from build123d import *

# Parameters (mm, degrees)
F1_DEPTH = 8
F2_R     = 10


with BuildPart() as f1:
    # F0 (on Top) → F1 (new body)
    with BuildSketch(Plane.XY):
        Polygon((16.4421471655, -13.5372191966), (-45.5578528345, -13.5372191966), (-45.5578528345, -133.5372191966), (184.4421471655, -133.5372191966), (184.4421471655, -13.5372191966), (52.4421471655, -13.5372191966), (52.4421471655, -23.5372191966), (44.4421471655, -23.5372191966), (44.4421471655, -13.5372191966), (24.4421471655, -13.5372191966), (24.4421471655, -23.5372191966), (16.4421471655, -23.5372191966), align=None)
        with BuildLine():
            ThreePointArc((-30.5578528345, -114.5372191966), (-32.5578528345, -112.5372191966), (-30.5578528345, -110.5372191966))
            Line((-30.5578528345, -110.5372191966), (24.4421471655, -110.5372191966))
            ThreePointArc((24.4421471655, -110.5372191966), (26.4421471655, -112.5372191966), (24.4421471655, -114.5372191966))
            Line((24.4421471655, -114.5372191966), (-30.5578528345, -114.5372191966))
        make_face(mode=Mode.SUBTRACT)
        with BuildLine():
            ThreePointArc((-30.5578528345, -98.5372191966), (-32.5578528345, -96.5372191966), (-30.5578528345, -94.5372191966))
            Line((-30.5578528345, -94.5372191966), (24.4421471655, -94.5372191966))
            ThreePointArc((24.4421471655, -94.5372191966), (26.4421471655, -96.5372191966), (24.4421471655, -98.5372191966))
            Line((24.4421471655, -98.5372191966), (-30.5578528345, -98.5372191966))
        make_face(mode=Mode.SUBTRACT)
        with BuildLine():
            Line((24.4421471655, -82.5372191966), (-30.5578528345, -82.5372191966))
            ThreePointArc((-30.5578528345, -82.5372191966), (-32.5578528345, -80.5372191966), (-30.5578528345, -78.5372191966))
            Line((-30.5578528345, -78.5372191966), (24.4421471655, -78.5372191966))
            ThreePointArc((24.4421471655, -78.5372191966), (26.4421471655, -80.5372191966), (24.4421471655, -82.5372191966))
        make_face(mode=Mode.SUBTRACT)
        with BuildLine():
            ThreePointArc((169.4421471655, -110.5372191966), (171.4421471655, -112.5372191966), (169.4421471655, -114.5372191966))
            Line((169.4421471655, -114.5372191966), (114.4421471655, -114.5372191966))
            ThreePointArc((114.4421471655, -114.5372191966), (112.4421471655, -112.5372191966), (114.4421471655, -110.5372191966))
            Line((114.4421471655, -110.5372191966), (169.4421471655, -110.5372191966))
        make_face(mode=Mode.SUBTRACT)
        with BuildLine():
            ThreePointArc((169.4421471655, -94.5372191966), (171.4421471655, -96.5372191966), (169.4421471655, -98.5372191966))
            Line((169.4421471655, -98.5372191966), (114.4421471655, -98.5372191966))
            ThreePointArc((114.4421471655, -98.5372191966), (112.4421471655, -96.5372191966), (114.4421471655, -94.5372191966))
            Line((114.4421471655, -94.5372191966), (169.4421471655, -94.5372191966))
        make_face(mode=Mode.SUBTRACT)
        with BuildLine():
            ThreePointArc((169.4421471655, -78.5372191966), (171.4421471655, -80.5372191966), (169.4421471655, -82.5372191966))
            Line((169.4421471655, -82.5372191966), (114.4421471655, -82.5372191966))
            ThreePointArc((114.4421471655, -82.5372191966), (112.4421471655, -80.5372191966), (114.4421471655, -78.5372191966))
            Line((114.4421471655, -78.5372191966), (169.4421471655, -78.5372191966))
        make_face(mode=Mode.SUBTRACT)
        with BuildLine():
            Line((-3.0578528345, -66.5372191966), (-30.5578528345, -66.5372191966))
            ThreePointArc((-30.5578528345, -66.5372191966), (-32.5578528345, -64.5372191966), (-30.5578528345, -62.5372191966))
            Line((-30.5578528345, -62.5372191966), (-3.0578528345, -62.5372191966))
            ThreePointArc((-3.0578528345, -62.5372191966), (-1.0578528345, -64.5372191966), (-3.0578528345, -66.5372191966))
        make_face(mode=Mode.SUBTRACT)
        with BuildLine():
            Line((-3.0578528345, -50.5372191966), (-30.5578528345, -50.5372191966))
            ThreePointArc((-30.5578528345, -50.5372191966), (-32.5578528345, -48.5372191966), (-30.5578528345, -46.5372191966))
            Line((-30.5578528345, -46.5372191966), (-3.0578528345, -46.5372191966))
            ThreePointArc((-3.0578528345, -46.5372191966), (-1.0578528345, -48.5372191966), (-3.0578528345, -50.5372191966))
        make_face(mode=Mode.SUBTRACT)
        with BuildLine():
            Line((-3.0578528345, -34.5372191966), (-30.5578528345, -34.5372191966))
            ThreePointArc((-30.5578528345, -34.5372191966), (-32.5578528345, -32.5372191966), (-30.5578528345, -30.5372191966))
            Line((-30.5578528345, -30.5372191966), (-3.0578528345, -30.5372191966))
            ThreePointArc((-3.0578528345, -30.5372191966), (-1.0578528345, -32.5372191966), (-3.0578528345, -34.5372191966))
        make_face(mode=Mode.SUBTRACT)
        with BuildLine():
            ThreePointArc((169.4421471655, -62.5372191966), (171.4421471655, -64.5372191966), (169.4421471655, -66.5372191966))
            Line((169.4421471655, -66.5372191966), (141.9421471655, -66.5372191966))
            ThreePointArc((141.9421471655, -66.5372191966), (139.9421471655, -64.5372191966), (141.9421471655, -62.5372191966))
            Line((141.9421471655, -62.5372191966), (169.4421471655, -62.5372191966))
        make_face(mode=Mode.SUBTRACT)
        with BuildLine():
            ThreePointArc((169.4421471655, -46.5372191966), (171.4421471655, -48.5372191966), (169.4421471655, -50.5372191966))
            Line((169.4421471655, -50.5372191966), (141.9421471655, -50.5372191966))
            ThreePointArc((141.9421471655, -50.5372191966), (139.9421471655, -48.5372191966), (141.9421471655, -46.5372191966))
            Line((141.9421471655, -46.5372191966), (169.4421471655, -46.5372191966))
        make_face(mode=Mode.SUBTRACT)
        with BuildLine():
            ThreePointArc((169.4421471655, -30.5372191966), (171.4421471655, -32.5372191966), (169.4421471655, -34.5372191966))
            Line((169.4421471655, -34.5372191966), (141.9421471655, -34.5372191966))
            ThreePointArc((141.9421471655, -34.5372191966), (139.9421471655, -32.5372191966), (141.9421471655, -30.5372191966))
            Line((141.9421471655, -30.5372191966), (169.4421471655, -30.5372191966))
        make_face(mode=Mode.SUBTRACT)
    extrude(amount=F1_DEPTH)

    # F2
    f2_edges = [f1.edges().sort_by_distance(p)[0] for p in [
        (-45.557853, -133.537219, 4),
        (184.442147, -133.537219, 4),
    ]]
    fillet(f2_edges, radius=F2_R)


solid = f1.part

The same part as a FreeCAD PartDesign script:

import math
import FreeCAD as App
import Part
import Sketcher


def edges_at(feature, points):
    """Names of the edges that pass closest to the given points."""
    edges = feature.Shape.Edges
    near = lambda p: min(range(len(edges)), key=lambda i: edges[i].distToShape(Part.Vertex(*p))[0])
    return sorted({f"Edge{near(p) + 1}" for p in points})


def add_polygon(sketch, points):
    """Adds a closed chain of lines whose ends are joined by coincident constraints."""
    first, n = sketch.GeometryCount, len(points)
    for a, b in zip(points, points[1:] + points[:1]):
        sketch.addGeometry(Part.LineSegment(App.Vector(*a, 0), App.Vector(*b, 0)), False)
    for i in range(n):
        sketch.addConstraint(Sketcher.Constraint("Coincident", first + i, 2, first + (i + 1) % n, 1))

doc = App.newDocument("Part")
body = doc.addObject("PartDesign::Body", "Body")

sketch1 = body.newObject("Sketcher::SketchObject", "Sketch")
sketch1.AttachmentSupport = (doc.getObject("XY_Plane"), [""])
sketch1.MapMode = "FlatFace"
add_polygon(sketch1, [(16.4, -13.5), (-45.6, -13.5), (-45.6, -133.5), (184.4, -133.5), (184.4, -13.5), (52.4, -13.5), (52.4, -23.5), (44.4, -23.5), (44.4, -13.5), (24.4, -13.5), (24.4, -23.5), (16.4, -23.5)])
sketch1.addGeometry(Part.LineSegment(App.Vector(24.4, -114.5, 0), App.Vector(-30.6, -114.5, 0)), False)
sketch1.addGeometry(Part.ArcOfCircle(Part.Circle(App.Vector(-30.6, -112.5, 0), App.Vector(0, 0, 1), 2), math.radians(90), math.radians(270)), False)
sketch1.addGeometry(Part.LineSegment(App.Vector(-30.6, -110.5, 0), App.Vector(24.4, -110.5, 0)), False)
sketch1.addGeometry(Part.ArcOfCircle(Part.Circle(App.Vector(24.4, -112.5, 0), App.Vector(0, 0, 1), 2), math.radians(-90), math.radians(90)), False)
sketch1.addGeometry(Part.LineSegment(App.Vector(24.4, -98.5, 0), App.Vector(-30.6, -98.5, 0)), False)
sketch1.addGeometry(Part.ArcOfCircle(Part.Circle(App.Vector(-30.6, -96.5, 0), App.Vector(0, 0, 1), 2), math.radians(90), math.radians(270)), False)
sketch1.addGeometry(Part.LineSegment(App.Vector(-30.6, -94.5, 0), App.Vector(24.4, -94.5, 0)), False)
sketch1.addGeometry(Part.ArcOfCircle(Part.Circle(App.Vector(24.4, -96.5, 0), App.Vector(0, 0, 1), 2), math.radians(-90), math.radians(90)), False)
sketch1.addGeometry(Part.ArcOfCircle(Part.Circle(App.Vector(24.4, -80.5, 0), App.Vector(0, 0, 1), 2), math.radians(-90), math.radians(90)), False)
sketch1.addGeometry(Part.LineSegment(App.Vector(24.4, -82.5, 0), App.Vector(-30.6, -82.5, 0)), False)
sketch1.addGeometry(Part.ArcOfCircle(Part.Circle(App.Vector(-30.6, -80.5, 0), App.Vector(0, 0, 1), 2), math.radians(90), math.radians(270)), False)
sketch1.addGeometry(Part.LineSegment(App.Vector(-30.6, -78.5, 0), App.Vector(24.4, -78.5, 0)), False)
sketch1.addGeometry(Part.LineSegment(App.Vector(114.4, -110.5, 0), App.Vector(169.4, -110.5, 0)), False)
sketch1.addGeometry(Part.ArcOfCircle(Part.Circle(App.Vector(169.4, -112.5, 0), App.Vector(0, 0, 1), 2), math.radians(-90), math.radians(90)), False)
sketch1.addGeometry(Part.LineSegment(App.Vector(169.4, -114.5, 0), App.Vector(114.4, -114.5, 0)), False)
sketch1.addGeometry(Part.ArcOfCircle(Part.Circle(App.Vector(114.4, -112.5, 0), App.Vector(0, 0, 1), 2), math.radians(90), math.radians(270)), False)
sketch1.addGeometry(Part.LineSegment(App.Vector(114.4, -94.5, 0), App.Vector(169.4, -94.5, 0)), False)
sketch1.addGeometry(Part.ArcOfCircle(Part.Circle(App.Vector(169.4, -96.5, 0), App.Vector(0, 0, 1), 2), math.radians(-90), math.radians(90)), False)
sketch1.addGeometry(Part.LineSegment(App.Vector(169.4, -98.5, 0), App.Vector(114.4, -98.5, 0)), False)
sketch1.addGeometry(Part.ArcOfCircle(Part.Circle(App.Vector(114.4, -96.5, 0), App.Vector(0, 0, 1), 2), math.radians(90), math.radians(270)), False)
sketch1.addGeometry(Part.LineSegment(App.Vector(114.4, -78.5, 0), App.Vector(169.4, -78.5, 0)), False)
sketch1.addGeometry(Part.ArcOfCircle(Part.Circle(App.Vector(169.4, -80.5, 0), App.Vector(0, 0, 1), 2), math.radians(-90), math.radians(90)), False)
sketch1.addGeometry(Part.LineSegment(App.Vector(169.4, -82.5, 0), App.Vector(114.4, -82.5, 0)), False)
sketch1.addGeometry(Part.ArcOfCircle(Part.Circle(App.Vector(114.4, -80.5, 0), App.Vector(0, 0, 1), 2), math.radians(90), math.radians(270)), False)
sketch1.addGeometry(Part.ArcOfCircle(Part.Circle(App.Vector(-3.1, -64.5, 0), App.Vector(0, 0, 1), 2), math.radians(-90), math.radians(90)), False)
sketch1.addGeometry(Part.LineSegment(App.Vector(-3.1, -66.5, 0), App.Vector(-30.6, -66.5, 0)), False)
sketch1.addGeometry(Part.ArcOfCircle(Part.Circle(App.Vector(-30.6, -64.5, 0), App.Vector(0, 0, 1), 2), math.radians(90), math.radians(270)), False)
sketch1.addGeometry(Part.LineSegment(App.Vector(-30.6, -62.5, 0), App.Vector(-3.1, -62.5, 0)), False)
sketch1.addGeometry(Part.ArcOfCircle(Part.Circle(App.Vector(-3.1, -48.5, 0), App.Vector(0, 0, 1), 2), math.radians(-90), math.radians(90)), False)
sketch1.addGeometry(Part.LineSegment(App.Vector(-3.1, -50.5, 0), App.Vector(-30.6, -50.5, 0)), False)
sketch1.addGeometry(Part.ArcOfCircle(Part.Circle(App.Vector(-30.6, -48.5, 0), App.Vector(0, 0, 1), 2), math.radians(90), math.radians(270)), False)
sketch1.addGeometry(Part.LineSegment(App.Vector(-30.6, -46.5, 0), App.Vector(-3.1, -46.5, 0)), False)
sketch1.addGeometry(Part.ArcOfCircle(Part.Circle(App.Vector(-3.1, -32.5, 0), App.Vector(0, 0, 1), 2), math.radians(-90), math.radians(90)), False)
sketch1.addGeometry(Part.LineSegment(App.Vector(-3.1, -34.5, 0), App.Vector(-30.6, -34.5, 0)), False)
sketch1.addGeometry(Part.ArcOfCircle(Part.Circle(App.Vector(-30.6, -32.5, 0), App.Vector(0, 0, 1), 2), math.radians(90), math.radians(270)), False)
sketch1.addGeometry(Part.LineSegment(App.Vector(-30.6, -30.5, 0), App.Vector(-3.1, -30.5, 0)), False)
sketch1.addGeometry(Part.LineSegment(App.Vector(141.9, -62.5, 0), App.Vector(169.4, -62.5, 0)), False)
sketch1.addGeometry(Part.ArcOfCircle(Part.Circle(App.Vector(169.4, -64.5, 0), App.Vector(0, 0, 1), 2), math.radians(-90), math.radians(90)), False)
sketch1.addGeometry(Part.LineSegment(App.Vector(169.4, -66.5, 0), App.Vector(141.9, -66.5, 0)), False)
sketch1.addGeometry(Part.ArcOfCircle(Part.Circle(App.Vector(141.9, -64.5, 0), App.Vector(0, 0, 1), 2), math.radians(90), math.radians(270)), False)
sketch1.addGeometry(Part.LineSegment(App.Vector(141.9, -46.5, 0), App.Vector(169.4, -46.5, 0)), False)
sketch1.addGeometry(Part.ArcOfCircle(Part.Circle(App.Vector(169.4, -48.5, 0), App.Vector(0, 0, 1), 2), math.radians(-90), math.radians(90)), False)
sketch1.addGeometry(Part.LineSegment(App.Vector(169.4, -50.5, 0), App.Vector(141.9, -50.5, 0)), False)
sketch1.addGeometry(Part.ArcOfCircle(Part.Circle(App.Vector(141.9, -48.5, 0), App.Vector(0, 0, 1), 2), math.radians(90), math.radians(270)), False)
sketch1.addGeometry(Part.LineSegment(App.Vector(141.9, -30.5, 0), App.Vector(169.4, -30.5, 0)), False)
sketch1.addGeometry(Part.ArcOfCircle(Part.Circle(App.Vector(169.4, -32.5, 0), App.Vector(0, 0, 1), 2), math.radians(-90), math.radians(90)), False)
sketch1.addGeometry(Part.LineSegment(App.Vector(169.4, -34.5, 0), App.Vector(141.9, -34.5, 0)), False)
sketch1.addGeometry(Part.ArcOfCircle(Part.Circle(App.Vector(141.9, -32.5, 0), App.Vector(0, 0, 1), 2), math.radians(90), math.radians(270)), False)
sketch1.addConstraint(Sketcher.Constraint("Tangent", 12, 2, 13, 2))
sketch1.addConstraint(Sketcher.Constraint("Tangent", 13, 1, 14, 1))
sketch1.addConstraint(Sketcher.Constraint("Tangent", 14, 2, 15, 2))
sketch1.addConstraint(Sketcher.Constraint("Tangent", 15, 1, 12, 1))
sketch1.addConstraint(Sketcher.Constraint("Tangent", 16, 2, 17, 2))
sketch1.addConstraint(Sketcher.Constraint("Tangent", 17, 1, 18, 1))
sketch1.addConstraint(Sketcher.Constraint("Tangent", 18, 2, 19, 2))
sketch1.addConstraint(Sketcher.Constraint("Tangent", 19, 1, 16, 1))
sketch1.addConstraint(Sketcher.Constraint("Tangent", 20, 1, 21, 1))
sketch1.addConstraint(Sketcher.Constraint("Tangent", 21, 2, 22, 2))
sketch1.addConstraint(Sketcher.Constraint("Tangent", 22, 1, 23, 1))
sketch1.addConstraint(Sketcher.Constraint("Tangent", 23, 2, 20, 2))
sketch1.addConstraint(Sketcher.Constraint("Tangent", 24, 2, 25, 2))
sketch1.addConstraint(Sketcher.Constraint("Tangent", 25, 1, 26, 1))
sketch1.addConstraint(Sketcher.Constraint("Tangent", 26, 2, 27, 2))
sketch1.addConstraint(Sketcher.Constraint("Tangent", 27, 1, 24, 1))
sketch1.addConstraint(Sketcher.Constraint("Tangent", 28, 2, 29, 2))
sketch1.addConstraint(Sketcher.Constraint("Tangent", 29, 1, 30, 1))
sketch1.addConstraint(Sketcher.Constraint("Tangent", 30, 2, 31, 2))
sketch1.addConstraint(Sketcher.Constraint("Tangent", 31, 1, 28, 1))
sketch1.addConstraint(Sketcher.Constraint("Tangent", 32, 2, 33, 2))
sketch1.addConstraint(Sketcher.Constraint("Tangent", 33, 1, 34, 1))
sketch1.addConstraint(Sketcher.Constraint("Tangent", 34, 2, 35, 2))
sketch1.addConstraint(Sketcher.Constraint("Tangent", 35, 1, 32, 1))
sketch1.addConstraint(Sketcher.Constraint("Tangent", 36, 1, 37, 1))
sketch1.addConstraint(Sketcher.Constraint("Tangent", 37, 2, 38, 2))
sketch1.addConstraint(Sketcher.Constraint("Tangent", 38, 1, 39, 1))
sketch1.addConstraint(Sketcher.Constraint("Tangent", 39, 2, 36, 2))
sketch1.addConstraint(Sketcher.Constraint("Tangent", 40, 1, 41, 1))
sketch1.addConstraint(Sketcher.Constraint("Tangent", 41, 2, 42, 2))
sketch1.addConstraint(Sketcher.Constraint("Tangent", 42, 1, 43, 1))
sketch1.addConstraint(Sketcher.Constraint("Tangent", 43, 2, 40, 2))
sketch1.addConstraint(Sketcher.Constraint("Tangent", 44, 1, 45, 1))
sketch1.addConstraint(Sketcher.Constraint("Tangent", 45, 2, 46, 2))
sketch1.addConstraint(Sketcher.Constraint("Tangent", 46, 1, 47, 1))
sketch1.addConstraint(Sketcher.Constraint("Tangent", 47, 2, 44, 2))
sketch1.addConstraint(Sketcher.Constraint("Tangent", 48, 2, 49, 2))
sketch1.addConstraint(Sketcher.Constraint("Tangent", 49, 1, 50, 1))
sketch1.addConstraint(Sketcher.Constraint("Tangent", 50, 2, 51, 2))
sketch1.addConstraint(Sketcher.Constraint("Tangent", 51, 1, 48, 1))
sketch1.addConstraint(Sketcher.Constraint("Tangent", 52, 2, 53, 2))
sketch1.addConstraint(Sketcher.Constraint("Tangent", 53, 1, 54, 1))
sketch1.addConstraint(Sketcher.Constraint("Tangent", 54, 2, 55, 2))
sketch1.addConstraint(Sketcher.Constraint("Tangent", 55, 1, 52, 1))
sketch1.addConstraint(Sketcher.Constraint("Tangent", 56, 2, 57, 2))
sketch1.addConstraint(Sketcher.Constraint("Tangent", 57, 1, 58, 1))
sketch1.addConstraint(Sketcher.Constraint("Tangent", 58, 2, 59, 2))
sketch1.addConstraint(Sketcher.Constraint("Tangent", 59, 1, 56, 1))
sketch1.addConstraint(Sketcher.Constraint("Horizontal", 0))
sketch1.addConstraint(Sketcher.Constraint("Vertical", 1))
sketch1.addConstraint(Sketcher.Constraint("Horizontal", 2))
sketch1.addConstraint(Sketcher.Constraint("Vertical", 3))
sketch1.addConstraint(Sketcher.Constraint("Horizontal", 4))
sketch1.addConstraint(Sketcher.Constraint("Vertical", 5))
sketch1.addConstraint(Sketcher.Constraint("Horizontal", 6))
sketch1.addConstraint(Sketcher.Constraint("Vertical", 7))
sketch1.addConstraint(Sketcher.Constraint("Horizontal", 8))
sketch1.addConstraint(Sketcher.Constraint("Vertical", 9))
sketch1.addConstraint(Sketcher.Constraint("Horizontal", 10))
sketch1.addConstraint(Sketcher.Constraint("Vertical", 11))
sketch1.addConstraint(Sketcher.Constraint("Horizontal", 12))
sketch1.addConstraint(Sketcher.Constraint("Horizontal", 14))
sketch1.addConstraint(Sketcher.Constraint("Horizontal", 16))
sketch1.addConstraint(Sketcher.Constraint("Horizontal", 18))
sketch1.addConstraint(Sketcher.Constraint("Horizontal", 21))
sketch1.addConstraint(Sketcher.Constraint("Horizontal", 23))
sketch1.addConstraint(Sketcher.Constraint("Horizontal", 24))
sketch1.addConstraint(Sketcher.Constraint("Horizontal", 26))
sketch1.addConstraint(Sketcher.Constraint("Horizontal", 28))
sketch1.addConstraint(Sketcher.Constraint("Horizontal", 30))
sketch1.addConstraint(Sketcher.Constraint("Horizontal", 32))
sketch1.addConstraint(Sketcher.Constraint("Horizontal", 34))
sketch1.addConstraint(Sketcher.Constraint("Horizontal", 37))
sketch1.addConstraint(Sketcher.Constraint("Horizontal", 39))
sketch1.addConstraint(Sketcher.Constraint("Horizontal", 41))
sketch1.addConstraint(Sketcher.Constraint("Horizontal", 43))
sketch1.addConstraint(Sketcher.Constraint("Horizontal", 45))
sketch1.addConstraint(Sketcher.Constraint("Horizontal", 47))
sketch1.addConstraint(Sketcher.Constraint("Horizontal", 48))
sketch1.addConstraint(Sketcher.Constraint("Horizontal", 50))
sketch1.addConstraint(Sketcher.Constraint("Horizontal", 52))
sketch1.addConstraint(Sketcher.Constraint("Horizontal", 54))
sketch1.addConstraint(Sketcher.Constraint("Horizontal", 56))
sketch1.addConstraint(Sketcher.Constraint("Horizontal", 58))
sketch1.addConstraint(Sketcher.Constraint("Equal", 15, 17))
sketch1.addConstraint(Sketcher.Constraint("Equal", 19, 20))
sketch1.addConstraint(Sketcher.Constraint("Equal", 22, 25))
sketch1.addConstraint(Sketcher.Constraint("Equal", 27, 29))
sketch1.addConstraint(Sketcher.Constraint("Equal", 31, 33))
sketch1.addConstraint(Sketcher.Constraint("Equal", 35, 36))
sketch1.addConstraint(Sketcher.Constraint("Equal", 38, 40))
sketch1.addConstraint(Sketcher.Constraint("Equal", 42, 44))
sketch1.addConstraint(Sketcher.Constraint("Equal", 46, 49))
sketch1.addConstraint(Sketcher.Constraint("Equal", 51, 53))
sketch1.addConstraint(Sketcher.Constraint("Equal", 55, 57))
sketch1.addConstraint(Sketcher.Constraint("Horizontal", 15, 3, 25, 3))
sketch1.addConstraint(Sketcher.Constraint("Horizontal", 19, 3, 29, 3))
sketch1.addConstraint(Sketcher.Constraint("Horizontal", 22, 3, 33, 3))
sketch1.addConstraint(Sketcher.Constraint("Horizontal", 38, 3, 49, 3))
sketch1.addConstraint(Sketcher.Constraint("Horizontal", 42, 3, 53, 3))
sketch1.addConstraint(Sketcher.Constraint("Horizontal", 46, 3, 57, 3))
sketch1.addConstraint(Sketcher.Constraint("Horizontal", 0, 2, 3, 2))
sketch1.addConstraint(Sketcher.Constraint("Horizontal", 4, 2, 7, 2))
sketch1.addConstraint(Sketcher.Constraint("Horizontal", 6, 2, 9, 2))
sketch1.addConstraint(Sketcher.Constraint("Vertical", 13, 3, 17, 3))
sketch1.addConstraint(Sketcher.Constraint("Vertical", 15, 3, 19, 3))
sketch1.addConstraint(Sketcher.Constraint("Vertical", 19, 3, 20, 3))
sketch1.addConstraint(Sketcher.Constraint("Vertical", 17, 3, 22, 3))
sketch1.addConstraint(Sketcher.Constraint("Vertical", 25, 3, 29, 3))
sketch1.addConstraint(Sketcher.Constraint("Vertical", 27, 3, 31, 3))
sketch1.addConstraint(Sketcher.Constraint("Vertical", 29, 3, 33, 3))
sketch1.addConstraint(Sketcher.Constraint("Vertical", 31, 3, 35, 3))
sketch1.addConstraint(Sketcher.Constraint("Vertical", 22, 3, 38, 3))
sketch1.addConstraint(Sketcher.Constraint("Vertical", 36, 3, 40, 3))
sketch1.addConstraint(Sketcher.Constraint("Vertical", 38, 3, 42, 3))
sketch1.addConstraint(Sketcher.Constraint("Vertical", 40, 3, 44, 3))
sketch1.addConstraint(Sketcher.Constraint("Vertical", 42, 3, 46, 3))
sketch1.addConstraint(Sketcher.Constraint("Vertical", 33, 3, 49, 3))
sketch1.addConstraint(Sketcher.Constraint("Vertical", 49, 3, 53, 3))
sketch1.addConstraint(Sketcher.Constraint("Vertical", 51, 3, 55, 3))
sketch1.addConstraint(Sketcher.Constraint("Vertical", 53, 3, 57, 3))
sketch1.addConstraint(Sketcher.Constraint("Vertical", 55, 3, 59, 3))
sketch1.addConstraint(Sketcher.Constraint("Vertical", 20, 3, 8, 2))
sketch1.addConstraint(Sketcher.Constraint("Equal", 6, 10))
sketch1.addConstraint(Sketcher.Constraint("Equal", 23, 24))
sketch1.addConstraint(Sketcher.Constraint("Equal", 47, 48))
sketch1.addConstraint(Sketcher.Constraint("Radius", 13, 2.0))
sketch1.addConstraint(Sketcher.Constraint("DistanceX", 0, 2, 0, 1, 62.0))
sketch1.addConstraint(Sketcher.Constraint("DistanceX", 2, 1, 2, 2, 230.0))
sketch1.addConstraint(Sketcher.Constraint("DistanceX", 4, 2, 4, 1, 132.0))
sketch1.addConstraint(Sketcher.Constraint("DistanceX", 6, 2, 6, 1, 8.0))
sketch1.addConstraint(Sketcher.Constraint("DistanceX", 12, 2, 12, 1, 55.0))
sketch1.addConstraint(Sketcher.Constraint("DistanceY", 1, 2, 1, 1, 120.0))
sketch1.addConstraint(Sketcher.Constraint("DistanceY", 5, 2, 5, 1, 10.0))
sketch1.addConstraint(Sketcher.Constraint("DistanceX", 37, 2, 37, 1, 27.5))
sketch1.addConstraint(Sketcher.Constraint("DistanceY", 13, 3, -1, 1, 112.537219))
sketch1.addConstraint(Sketcher.Constraint("DistanceY", 17, 3, -1, 1, 96.537219))
sketch1.addConstraint(Sketcher.Constraint("DistanceY", 20, 3, -1, 1, 80.537219))
sketch1.addConstraint(Sketcher.Constraint("DistanceY", 36, 3, -1, 1, 64.537219))
sketch1.addConstraint(Sketcher.Constraint("DistanceY", 40, 3, -1, 1, 48.537219))
sketch1.addConstraint(Sketcher.Constraint("DistanceY", 44, 3, -1, 1, 32.537219))
sketch1.addConstraint(Sketcher.Constraint("DistanceY", 0, 2, -1, 1, 13.537219))
sketch1.addConstraint(Sketcher.Constraint("DistanceX", 13, 3, -1, 1, 30.557853))
sketch1.addConstraint(Sketcher.Constraint("DistanceX", -1, 1, 25, 3, 169.442147))
pad1 = body.newObject("PartDesign::Pad", "Pad")
pad1.Profile = sketch1
pad1.Length = 8
doc.recompute()

fillet = body.newObject("PartDesign::Fillet", "Fillet")
fillet.Base = (pad1, edges_at(pad1, [(-45.558, -133.537, 4), (184.442, -133.537, 4)]))
fillet.Radius = 10

doc.recompute()
